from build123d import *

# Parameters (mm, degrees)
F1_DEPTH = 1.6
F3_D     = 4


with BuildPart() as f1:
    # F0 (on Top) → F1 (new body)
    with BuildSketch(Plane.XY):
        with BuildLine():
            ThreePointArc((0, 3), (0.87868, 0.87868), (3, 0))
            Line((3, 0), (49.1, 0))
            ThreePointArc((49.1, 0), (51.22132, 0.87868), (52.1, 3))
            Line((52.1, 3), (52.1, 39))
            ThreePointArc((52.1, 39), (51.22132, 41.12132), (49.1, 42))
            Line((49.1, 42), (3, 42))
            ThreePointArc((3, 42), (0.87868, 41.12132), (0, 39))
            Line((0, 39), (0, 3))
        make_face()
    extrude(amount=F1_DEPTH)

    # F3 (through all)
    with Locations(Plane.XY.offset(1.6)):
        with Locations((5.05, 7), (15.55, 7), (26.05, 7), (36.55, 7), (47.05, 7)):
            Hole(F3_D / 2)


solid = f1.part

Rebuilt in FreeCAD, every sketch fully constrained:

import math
import FreeCAD as App
import Part
import Sketcher
from FreeCAD import Vector

doc = App.newDocument("Part")
body = doc.addObject("PartDesign::Body", "Body")

# Sketch on XY plane
sketch1 = body.newObject("Sketcher::SketchObject", "Sketch")
sketch1.AttachmentSupport = (doc.getObject("XY_Plane"), [""])
sketch1.MapMode = "FlatFace"
sketch1.addGeometry(Part.ArcOfCircle(Part.Circle(Vector(3, 3, 0), Vector(0, 0, 1), 3), math.radians(-180), math.radians(-90)), False)
sketch1.addGeometry(Part.LineSegment(Vector(3, 0, 0), Vector(49.1, 0, 0)), False)
sketch1.addGeometry(Part.ArcOfCircle(Part.Circle(Vector(49.1, 3, 0), Vector(0, 0, 1), 3), math.radians(-90), math.radians(0)), False)
sketch1.addGeometry(Part.LineSegment(Vector(52.1, 3, 0), Vector(52.1, 39, 0)), False)
sketch1.addGeometry(Part.ArcOfCircle(Part.Circle(Vector(49.1, 39, 0), Vector(0, 0, 1), 3), math.radians(0), math.radians(90)), False)
sketch1.addGeometry(Part.LineSegment(Vector(49.1, 42, 0), Vector(3, 42, 0)), False)
sketch1.addGeometry(Part.ArcOfCircle(Part.Circle(Vector(3, 39, 0), Vector(0, 0, 1), 3), math.radians(90), math.radians(180)), False)
sketch1.addGeometry(Part.LineSegment(Vector(0, 39, 0), Vector(0, 3, 0)), False)
sketch1.addConstraint(Sketcher.Constraint("Tangent", 0, 2, 1, 1))
sketch1.addConstraint(Sketcher.Constraint("Tangent", 1, 2, 2, 1))
sketch1.addConstraint(Sketcher.Constraint("Tangent", 2, 2, 3, 1))
sketch1.addConstraint(Sketcher.Constraint("Tangent", 3, 2, 4, 1))
sketch1.addConstraint(Sketcher.Constraint("Tangent", 4, 2, 5, 1))
sketch1.addConstraint(Sketcher.Constraint("Tangent", 5, 2, 6, 1))
sketch1.addConstraint(Sketcher.Constraint("Tangent", 6, 2, 7, 1))
sketch1.addConstraint(Sketcher.Constraint("Tangent", 7, 2, 0, 1))
sketch1.addConstraint(Sketcher.Constraint("Horizontal", 1))
sketch1.addConstraint(Sketcher.Constraint("Vertical", 3))
sketch1.addConstraint(Sketcher.Constraint("Horizontal", 5))
sketch1.addConstraint(Sketcher.Constraint("Vertical", 7))
sketch1.addConstraint(Sketcher.Constraint("Equal", 0, 2))
sketch1.addConstraint(Sketcher.Constraint("Equal", 2, 4))
sketch1.addConstraint(Sketcher.Constraint("Equal", 4, 6))
sketch1.addConstraint(Sketcher.Constraint("PointOnObject", 0, 2, -1))
sketch1.addConstraint(Sketcher.Constraint("PointOnObject", 6, 2, -2))
sketch1.addConstraint(Sketcher.Constraint("Radius", 0, 3.000001))
sketch1.addConstraint(Sketcher.Constraint("DistanceY", 3, 1, 3, 2, 36.0))
sketch1.addConstraint(Sketcher.Constraint("DistanceX", 1, 1, 1, 2, 46.1))
pad1 = body.newObject("PartDesign::Pad", "Pad")
pad1.Profile = sketch1
pad1.Length = 1.6

# Sketch on XY plane
sketch2 = body.newObject("Sketcher::SketchObject", "Sketch001")
sketch2.AttachmentSupport = (doc.getObject("XY_Plane"), [""])
sketch2.MapMode = "FlatFace"
sketch2.AttachmentOffset = App.Placement(Vector(0, 0, 1.6), App.Rotation())
sketch2.addGeometry(Part.Circle(Vector(5, 7, 0), Vector(0, 0, 1), 2), False)
sketch2.addGeometry(Part.Circle(Vector(15.6, 7, 0), Vector(0, 0, 1), 2), False)
sketch2.addGeometry(Part.Circle(Vector(26.1, 7, 0), Vector(0, 0, 1), 2), False)
sketch2.addGeometry(Part.Circle(Vector(36.5, 7, 0), Vector(0, 0, 1), 2), False)
sketch2.addGeometry(Part.Circle(Vector(47, 7, 0), Vector(0, 0, 1), 2), False)
sketch2.addConstraint(Sketcher.Constraint("Equal", 0, 1))
sketch2.addConstraint(Sketcher.Constraint("Equal", 1, 2))
sketch2.addConstraint(Sketcher.Constraint("Equal", 2, 3))
sketch2.addConstraint(Sketcher.Constraint("Equal", 3, 4))
sketch2.addConstraint(Sketcher.Constraint("Horizontal", 0, 3, 1, 3))
sketch2.addConstraint(Sketcher.Constraint("Horizontal", 1, 3, 2, 3))
sketch2.addConstraint(Sketcher.Constraint("Horizontal", 2, 3, 3, 3))
sketch2.addConstraint(Sketcher.Constraint("Horizontal", 3, 3, 4, 3))
sketch2.addConstraint(Sketcher.Constraint("Diameter", 0, 4.0))
sketch2.addConstraint(Sketcher.Constraint("DistanceY", -1, 1, 0, 3, 7.0))
sketch2.addConstraint(Sketcher.Constraint("DistanceX", 0, 3, 2, 3, 21.0))
sketch2.addConstraint(Sketcher.Constraint("DistanceX", 1, 3, 3, 3, 21.0))
sketch2.addConstraint(Sketcher.Constraint("DistanceX", 2, 3, 4, 3, 21.0))
sketch2.addConstraint(Sketcher.Constraint("DistanceX", 0, 3, 1, 3, 10.5))
sketch2.addConstraint(Sketcher.Constraint("DistanceX", -1, 1, 0, 3, 5.05))
doc.recompute()
hole = body.newObject("PartDesign::Hole", "Hole")
hole.Profile = sketch2
hole.ThreadType = "None"
hole.Diameter = 4
hole.DepthType = "ThroughAll"

doc.recompute()
